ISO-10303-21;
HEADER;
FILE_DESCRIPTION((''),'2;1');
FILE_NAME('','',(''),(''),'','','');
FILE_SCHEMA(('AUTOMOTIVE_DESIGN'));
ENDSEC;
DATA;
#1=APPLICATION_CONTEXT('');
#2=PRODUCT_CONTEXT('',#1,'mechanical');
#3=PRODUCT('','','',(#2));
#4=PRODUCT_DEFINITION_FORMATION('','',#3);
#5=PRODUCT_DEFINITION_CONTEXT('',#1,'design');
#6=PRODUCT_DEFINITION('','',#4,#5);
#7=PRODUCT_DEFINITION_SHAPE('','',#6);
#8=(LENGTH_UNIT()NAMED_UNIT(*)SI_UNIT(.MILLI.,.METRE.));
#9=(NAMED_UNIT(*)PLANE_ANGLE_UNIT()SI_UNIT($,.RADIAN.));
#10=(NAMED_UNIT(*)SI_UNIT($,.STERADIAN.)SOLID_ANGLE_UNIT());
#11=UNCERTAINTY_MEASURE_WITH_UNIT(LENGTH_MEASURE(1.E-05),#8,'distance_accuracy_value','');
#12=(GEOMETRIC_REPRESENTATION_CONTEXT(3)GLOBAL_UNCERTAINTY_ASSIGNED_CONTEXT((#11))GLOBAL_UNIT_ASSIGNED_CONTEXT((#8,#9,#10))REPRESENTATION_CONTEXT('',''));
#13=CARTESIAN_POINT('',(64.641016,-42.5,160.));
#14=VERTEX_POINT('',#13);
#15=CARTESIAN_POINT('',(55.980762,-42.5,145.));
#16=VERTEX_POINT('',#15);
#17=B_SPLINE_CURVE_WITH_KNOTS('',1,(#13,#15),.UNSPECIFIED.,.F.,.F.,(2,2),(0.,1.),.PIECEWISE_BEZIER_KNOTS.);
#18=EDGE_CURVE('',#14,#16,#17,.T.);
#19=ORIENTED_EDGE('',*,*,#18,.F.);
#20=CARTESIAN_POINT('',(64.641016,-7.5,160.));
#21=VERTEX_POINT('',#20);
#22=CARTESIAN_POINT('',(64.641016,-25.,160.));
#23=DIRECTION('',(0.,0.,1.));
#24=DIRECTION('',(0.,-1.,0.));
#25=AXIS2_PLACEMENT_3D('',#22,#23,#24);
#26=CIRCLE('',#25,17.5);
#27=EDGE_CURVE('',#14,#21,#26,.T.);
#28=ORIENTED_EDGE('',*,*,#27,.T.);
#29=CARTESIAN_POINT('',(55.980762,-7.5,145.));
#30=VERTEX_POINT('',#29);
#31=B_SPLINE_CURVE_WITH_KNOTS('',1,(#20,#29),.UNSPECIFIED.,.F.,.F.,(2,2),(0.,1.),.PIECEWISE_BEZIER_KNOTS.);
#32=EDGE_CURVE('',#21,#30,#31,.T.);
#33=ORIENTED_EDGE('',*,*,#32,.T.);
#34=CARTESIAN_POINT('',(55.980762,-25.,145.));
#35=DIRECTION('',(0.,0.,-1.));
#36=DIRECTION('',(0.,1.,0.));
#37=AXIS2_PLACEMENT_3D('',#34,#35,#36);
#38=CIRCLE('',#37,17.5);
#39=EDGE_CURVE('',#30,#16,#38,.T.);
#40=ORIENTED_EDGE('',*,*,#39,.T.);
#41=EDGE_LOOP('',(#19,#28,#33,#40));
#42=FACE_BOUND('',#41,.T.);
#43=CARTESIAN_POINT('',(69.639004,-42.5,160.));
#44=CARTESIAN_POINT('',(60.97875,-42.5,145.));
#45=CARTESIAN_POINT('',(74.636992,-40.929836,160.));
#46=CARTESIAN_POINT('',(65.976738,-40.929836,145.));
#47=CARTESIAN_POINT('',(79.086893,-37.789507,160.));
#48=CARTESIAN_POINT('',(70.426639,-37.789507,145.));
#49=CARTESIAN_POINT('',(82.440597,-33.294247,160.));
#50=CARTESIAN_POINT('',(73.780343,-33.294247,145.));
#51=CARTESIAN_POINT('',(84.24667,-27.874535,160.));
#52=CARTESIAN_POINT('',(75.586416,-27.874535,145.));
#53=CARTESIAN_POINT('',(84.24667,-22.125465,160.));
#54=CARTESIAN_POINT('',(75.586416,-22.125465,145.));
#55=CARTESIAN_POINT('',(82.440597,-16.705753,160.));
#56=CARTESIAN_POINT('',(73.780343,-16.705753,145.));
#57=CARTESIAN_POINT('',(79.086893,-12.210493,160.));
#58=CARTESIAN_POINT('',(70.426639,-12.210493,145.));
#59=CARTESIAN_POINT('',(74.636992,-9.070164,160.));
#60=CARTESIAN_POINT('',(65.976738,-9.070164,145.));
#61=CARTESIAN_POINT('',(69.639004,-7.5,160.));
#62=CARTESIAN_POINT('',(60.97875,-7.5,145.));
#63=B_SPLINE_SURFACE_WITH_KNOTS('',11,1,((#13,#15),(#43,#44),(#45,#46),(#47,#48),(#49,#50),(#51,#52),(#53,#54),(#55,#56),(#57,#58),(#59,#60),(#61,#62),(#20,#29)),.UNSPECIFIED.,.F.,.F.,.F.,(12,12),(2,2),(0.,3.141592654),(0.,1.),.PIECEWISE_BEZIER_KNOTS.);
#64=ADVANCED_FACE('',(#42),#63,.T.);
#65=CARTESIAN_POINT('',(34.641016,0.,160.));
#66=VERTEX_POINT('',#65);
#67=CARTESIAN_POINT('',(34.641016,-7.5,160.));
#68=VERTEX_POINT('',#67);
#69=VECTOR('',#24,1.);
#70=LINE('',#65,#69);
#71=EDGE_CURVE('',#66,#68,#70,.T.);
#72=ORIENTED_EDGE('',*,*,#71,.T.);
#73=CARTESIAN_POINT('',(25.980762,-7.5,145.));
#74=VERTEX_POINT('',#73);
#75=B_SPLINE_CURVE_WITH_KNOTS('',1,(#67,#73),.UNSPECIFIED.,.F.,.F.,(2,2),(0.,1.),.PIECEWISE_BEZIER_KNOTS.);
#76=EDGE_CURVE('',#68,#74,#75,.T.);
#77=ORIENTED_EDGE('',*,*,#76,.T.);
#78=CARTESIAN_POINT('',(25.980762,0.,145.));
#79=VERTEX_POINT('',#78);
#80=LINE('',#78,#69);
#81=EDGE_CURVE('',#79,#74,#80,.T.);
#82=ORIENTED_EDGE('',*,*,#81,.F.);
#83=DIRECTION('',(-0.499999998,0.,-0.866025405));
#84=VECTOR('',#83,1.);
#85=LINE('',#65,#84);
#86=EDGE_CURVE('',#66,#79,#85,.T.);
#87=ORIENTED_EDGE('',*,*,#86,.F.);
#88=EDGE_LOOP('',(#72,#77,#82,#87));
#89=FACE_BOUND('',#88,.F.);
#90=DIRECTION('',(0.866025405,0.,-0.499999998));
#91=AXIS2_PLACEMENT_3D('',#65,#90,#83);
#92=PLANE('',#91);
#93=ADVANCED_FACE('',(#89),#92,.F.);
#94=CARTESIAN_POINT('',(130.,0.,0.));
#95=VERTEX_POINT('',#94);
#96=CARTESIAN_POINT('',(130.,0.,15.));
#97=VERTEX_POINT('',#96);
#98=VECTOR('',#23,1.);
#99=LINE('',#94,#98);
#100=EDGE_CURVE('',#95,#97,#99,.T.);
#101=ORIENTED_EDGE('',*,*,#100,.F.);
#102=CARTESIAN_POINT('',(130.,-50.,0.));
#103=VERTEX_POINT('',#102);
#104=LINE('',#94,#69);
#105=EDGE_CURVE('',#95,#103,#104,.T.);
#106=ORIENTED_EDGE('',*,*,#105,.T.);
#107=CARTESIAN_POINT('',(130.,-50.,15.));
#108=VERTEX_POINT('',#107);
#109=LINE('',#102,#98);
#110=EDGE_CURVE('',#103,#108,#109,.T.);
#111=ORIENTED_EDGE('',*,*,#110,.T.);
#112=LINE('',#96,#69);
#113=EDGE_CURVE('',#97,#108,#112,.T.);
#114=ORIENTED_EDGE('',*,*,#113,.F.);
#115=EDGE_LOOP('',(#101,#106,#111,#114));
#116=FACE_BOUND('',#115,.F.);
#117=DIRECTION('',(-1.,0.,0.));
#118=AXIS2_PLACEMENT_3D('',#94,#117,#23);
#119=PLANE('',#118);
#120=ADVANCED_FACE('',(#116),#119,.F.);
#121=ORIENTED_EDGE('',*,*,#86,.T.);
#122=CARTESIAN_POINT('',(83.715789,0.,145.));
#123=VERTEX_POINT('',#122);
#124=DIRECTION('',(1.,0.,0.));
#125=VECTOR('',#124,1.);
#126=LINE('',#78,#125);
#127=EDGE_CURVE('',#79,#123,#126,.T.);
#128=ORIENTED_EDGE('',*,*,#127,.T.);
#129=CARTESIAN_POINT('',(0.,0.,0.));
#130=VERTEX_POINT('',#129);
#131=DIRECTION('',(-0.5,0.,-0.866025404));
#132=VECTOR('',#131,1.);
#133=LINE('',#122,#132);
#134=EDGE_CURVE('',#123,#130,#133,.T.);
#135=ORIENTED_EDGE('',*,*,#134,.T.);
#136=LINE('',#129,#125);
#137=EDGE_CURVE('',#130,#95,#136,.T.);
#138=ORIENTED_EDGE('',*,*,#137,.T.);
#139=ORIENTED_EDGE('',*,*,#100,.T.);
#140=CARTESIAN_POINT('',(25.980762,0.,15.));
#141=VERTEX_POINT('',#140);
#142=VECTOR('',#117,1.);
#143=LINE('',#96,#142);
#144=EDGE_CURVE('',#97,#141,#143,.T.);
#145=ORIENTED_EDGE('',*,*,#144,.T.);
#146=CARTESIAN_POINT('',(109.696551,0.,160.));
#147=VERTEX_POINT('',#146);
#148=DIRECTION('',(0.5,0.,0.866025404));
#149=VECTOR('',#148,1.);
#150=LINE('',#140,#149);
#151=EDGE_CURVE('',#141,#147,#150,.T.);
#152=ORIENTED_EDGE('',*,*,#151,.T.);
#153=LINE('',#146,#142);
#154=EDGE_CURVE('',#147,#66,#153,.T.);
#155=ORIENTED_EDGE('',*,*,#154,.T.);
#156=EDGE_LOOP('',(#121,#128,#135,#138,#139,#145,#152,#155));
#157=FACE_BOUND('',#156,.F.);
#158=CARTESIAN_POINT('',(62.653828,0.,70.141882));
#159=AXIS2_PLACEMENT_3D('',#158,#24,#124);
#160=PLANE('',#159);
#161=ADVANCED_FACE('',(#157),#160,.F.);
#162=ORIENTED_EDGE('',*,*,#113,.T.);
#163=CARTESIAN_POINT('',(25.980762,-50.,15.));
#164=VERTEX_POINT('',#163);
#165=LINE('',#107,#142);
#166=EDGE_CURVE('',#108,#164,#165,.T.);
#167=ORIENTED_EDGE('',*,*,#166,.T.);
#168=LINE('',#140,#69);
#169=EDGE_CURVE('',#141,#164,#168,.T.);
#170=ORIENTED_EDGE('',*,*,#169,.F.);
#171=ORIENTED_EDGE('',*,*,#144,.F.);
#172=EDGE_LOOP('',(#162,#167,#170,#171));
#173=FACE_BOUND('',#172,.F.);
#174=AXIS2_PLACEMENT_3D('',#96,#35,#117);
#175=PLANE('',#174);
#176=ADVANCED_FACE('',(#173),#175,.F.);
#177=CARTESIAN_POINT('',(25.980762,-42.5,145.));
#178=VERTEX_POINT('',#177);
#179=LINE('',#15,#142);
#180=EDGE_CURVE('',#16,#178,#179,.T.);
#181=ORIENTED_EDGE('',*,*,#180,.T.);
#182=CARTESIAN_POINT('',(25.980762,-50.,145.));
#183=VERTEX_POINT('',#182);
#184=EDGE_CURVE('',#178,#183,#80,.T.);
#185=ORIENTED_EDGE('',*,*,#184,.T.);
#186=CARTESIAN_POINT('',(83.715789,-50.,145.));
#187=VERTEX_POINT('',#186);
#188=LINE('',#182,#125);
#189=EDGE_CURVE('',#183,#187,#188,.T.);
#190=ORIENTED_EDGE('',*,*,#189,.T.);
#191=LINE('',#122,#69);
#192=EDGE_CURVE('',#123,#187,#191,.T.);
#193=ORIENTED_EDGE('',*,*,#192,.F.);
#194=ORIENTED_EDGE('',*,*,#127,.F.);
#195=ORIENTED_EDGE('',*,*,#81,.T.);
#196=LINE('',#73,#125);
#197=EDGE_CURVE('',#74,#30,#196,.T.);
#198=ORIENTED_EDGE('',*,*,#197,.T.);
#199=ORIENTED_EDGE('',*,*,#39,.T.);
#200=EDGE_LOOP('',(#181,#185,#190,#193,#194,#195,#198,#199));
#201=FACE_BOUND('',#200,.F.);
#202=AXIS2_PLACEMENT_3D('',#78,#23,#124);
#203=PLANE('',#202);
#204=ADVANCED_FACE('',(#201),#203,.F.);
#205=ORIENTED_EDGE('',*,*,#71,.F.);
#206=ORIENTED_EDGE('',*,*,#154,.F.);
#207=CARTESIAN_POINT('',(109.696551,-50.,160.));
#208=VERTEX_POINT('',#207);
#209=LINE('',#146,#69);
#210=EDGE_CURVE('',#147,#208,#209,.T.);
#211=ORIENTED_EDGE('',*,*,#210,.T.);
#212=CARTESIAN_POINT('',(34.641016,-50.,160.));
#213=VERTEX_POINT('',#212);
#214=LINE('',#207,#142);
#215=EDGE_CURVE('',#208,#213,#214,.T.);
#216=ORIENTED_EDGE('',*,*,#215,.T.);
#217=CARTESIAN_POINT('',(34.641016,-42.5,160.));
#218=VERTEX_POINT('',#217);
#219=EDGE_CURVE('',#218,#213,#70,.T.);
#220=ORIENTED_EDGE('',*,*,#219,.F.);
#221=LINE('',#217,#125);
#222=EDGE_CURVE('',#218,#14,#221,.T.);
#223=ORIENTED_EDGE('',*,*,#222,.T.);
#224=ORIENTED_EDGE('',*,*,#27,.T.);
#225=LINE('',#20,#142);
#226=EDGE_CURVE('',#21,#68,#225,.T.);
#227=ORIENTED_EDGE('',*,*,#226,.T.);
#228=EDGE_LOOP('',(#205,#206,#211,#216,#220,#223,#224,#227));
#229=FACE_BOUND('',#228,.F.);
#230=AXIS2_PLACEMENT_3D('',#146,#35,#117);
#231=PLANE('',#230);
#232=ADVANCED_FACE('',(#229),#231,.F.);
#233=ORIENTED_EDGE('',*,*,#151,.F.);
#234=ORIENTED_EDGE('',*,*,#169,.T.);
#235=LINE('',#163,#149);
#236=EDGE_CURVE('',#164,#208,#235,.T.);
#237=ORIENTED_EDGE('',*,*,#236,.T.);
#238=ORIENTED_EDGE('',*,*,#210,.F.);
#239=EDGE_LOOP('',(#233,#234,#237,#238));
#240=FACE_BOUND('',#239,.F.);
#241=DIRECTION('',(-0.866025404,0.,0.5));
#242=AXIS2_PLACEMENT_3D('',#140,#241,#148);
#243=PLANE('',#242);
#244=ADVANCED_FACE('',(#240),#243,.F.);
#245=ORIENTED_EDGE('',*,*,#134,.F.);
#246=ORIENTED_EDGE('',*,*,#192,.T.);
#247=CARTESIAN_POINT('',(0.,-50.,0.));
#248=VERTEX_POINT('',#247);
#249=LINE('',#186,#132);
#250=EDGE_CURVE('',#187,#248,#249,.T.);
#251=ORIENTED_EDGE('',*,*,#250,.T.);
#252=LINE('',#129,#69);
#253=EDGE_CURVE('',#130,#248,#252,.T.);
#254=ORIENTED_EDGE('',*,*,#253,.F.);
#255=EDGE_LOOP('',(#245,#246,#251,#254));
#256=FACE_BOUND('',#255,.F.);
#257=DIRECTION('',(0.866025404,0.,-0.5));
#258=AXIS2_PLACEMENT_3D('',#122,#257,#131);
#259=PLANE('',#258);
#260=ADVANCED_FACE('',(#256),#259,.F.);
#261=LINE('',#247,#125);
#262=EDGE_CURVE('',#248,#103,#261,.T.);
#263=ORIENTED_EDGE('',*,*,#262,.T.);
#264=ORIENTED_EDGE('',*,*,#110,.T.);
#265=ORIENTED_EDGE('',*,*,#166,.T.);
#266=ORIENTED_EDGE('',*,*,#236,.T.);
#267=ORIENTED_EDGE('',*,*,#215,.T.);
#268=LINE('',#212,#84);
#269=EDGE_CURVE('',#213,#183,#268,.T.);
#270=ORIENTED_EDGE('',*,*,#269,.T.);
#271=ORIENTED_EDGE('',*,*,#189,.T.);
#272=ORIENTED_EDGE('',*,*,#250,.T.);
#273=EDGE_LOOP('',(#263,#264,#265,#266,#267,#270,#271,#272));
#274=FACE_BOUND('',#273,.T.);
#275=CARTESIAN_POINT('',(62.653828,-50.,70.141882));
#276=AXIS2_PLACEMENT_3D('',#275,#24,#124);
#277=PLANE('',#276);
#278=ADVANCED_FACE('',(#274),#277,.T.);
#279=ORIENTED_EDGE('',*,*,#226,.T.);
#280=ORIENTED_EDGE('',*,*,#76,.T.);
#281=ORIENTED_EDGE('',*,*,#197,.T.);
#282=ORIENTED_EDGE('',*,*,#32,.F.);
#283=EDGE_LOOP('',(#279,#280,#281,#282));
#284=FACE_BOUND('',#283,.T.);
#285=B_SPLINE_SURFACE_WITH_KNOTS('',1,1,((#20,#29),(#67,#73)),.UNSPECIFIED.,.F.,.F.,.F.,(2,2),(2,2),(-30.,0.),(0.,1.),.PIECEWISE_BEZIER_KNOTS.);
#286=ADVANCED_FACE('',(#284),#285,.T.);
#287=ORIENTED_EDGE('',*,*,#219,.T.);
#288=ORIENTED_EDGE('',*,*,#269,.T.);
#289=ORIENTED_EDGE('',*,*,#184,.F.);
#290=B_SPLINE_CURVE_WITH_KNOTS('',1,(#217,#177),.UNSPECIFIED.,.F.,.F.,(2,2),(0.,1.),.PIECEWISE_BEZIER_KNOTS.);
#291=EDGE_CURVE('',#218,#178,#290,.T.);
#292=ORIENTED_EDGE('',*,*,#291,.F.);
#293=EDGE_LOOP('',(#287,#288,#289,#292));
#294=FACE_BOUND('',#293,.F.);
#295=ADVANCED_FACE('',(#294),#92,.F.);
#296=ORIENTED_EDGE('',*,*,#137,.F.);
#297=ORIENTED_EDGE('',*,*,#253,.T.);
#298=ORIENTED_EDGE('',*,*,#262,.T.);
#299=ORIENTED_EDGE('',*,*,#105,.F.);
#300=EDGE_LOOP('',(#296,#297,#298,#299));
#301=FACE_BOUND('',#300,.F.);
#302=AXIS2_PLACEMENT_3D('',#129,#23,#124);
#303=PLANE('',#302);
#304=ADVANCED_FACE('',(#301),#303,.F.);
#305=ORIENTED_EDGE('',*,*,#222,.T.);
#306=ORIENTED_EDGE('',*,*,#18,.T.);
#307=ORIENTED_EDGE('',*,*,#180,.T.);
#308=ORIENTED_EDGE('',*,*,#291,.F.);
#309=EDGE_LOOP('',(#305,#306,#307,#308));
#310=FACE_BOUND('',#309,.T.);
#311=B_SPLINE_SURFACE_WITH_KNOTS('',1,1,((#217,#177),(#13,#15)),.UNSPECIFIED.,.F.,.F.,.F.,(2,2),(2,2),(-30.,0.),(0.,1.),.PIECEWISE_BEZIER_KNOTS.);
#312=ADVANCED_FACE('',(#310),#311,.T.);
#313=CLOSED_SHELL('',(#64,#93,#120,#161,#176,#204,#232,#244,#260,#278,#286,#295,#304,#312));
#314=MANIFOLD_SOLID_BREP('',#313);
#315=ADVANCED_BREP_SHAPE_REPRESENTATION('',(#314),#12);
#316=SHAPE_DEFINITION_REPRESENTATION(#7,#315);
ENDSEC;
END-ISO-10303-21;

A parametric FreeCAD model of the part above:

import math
import FreeCAD as App
import Part
import Sketcher
from FreeCAD import Vector
Q = App.Units.Quantity


def add_polygon(sketch, points):
    """Adds a closed chain of lines whose ends are joined by coincident constraints."""
    first, n = sketch.GeometryCount, len(points)
    for a, b in zip(points, points[1:] + points[:1]):
        sketch.addGeometry(Part.LineSegment(App.Vector(*a, 0), App.Vector(*b, 0)), False)
    for i in range(n):
        sketch.addConstraint(Sketcher.Constraint("Coincident", first + i, 2, first + (i + 1) % n, 1))

doc = App.newDocument("Part")
body = doc.addObject("PartDesign::Body", "Body")

# Sketch on XZ plane
sketch1 = body.newObject("Sketcher::SketchObject", "Sketch")
sketch1.AttachmentSupport = (doc.getObject("XZ_Plane"), [""])
sketch1.MapMode = "FlatFace"
add_polygon(sketch1, [(84, 145), (0, 0), (130, 0), (130, 15), (26, 15), (110, 160), (35, 160), (26, 145)])  # lines 0-7
sketch1.addConstraint([
    Sketcher.Constraint("Horizontal", 1),
    Sketcher.Constraint("Vertical", 2),
    Sketcher.Constraint("Horizontal", 3),
    Sketcher.Constraint("Horizontal", 5),
    Sketcher.Constraint("Horizontal", 7),
    Sketcher.Constraint("Coincident", 0, 2, -1, 1),
    Sketcher.Constraint("Parallel", 0, 4),
    Sketcher.Constraint("Parallel", 4, 6),
    Sketcher.Constraint("Vertical", 3, 2, 6, 2),
    Sketcher.Constraint("Equal", 0, 4),
    Sketcher.Constraint("DistanceX", 1, 1, 1, 2, 130.0),
    Sketcher.Constraint("DistanceY", 2, 1, 2, 2, 15.0),
    Sketcher.Constraint("Angle", 0, Q("-120 deg")),
    Sketcher.Constraint("DistanceY", -1, 1, 4, 2, 160.0),
    Sketcher.Constraint("DistanceX", 3, 2, 3, 1, 104.019238),
])
pad1 = body.newObject("PartDesign::Pad", "Pad")
pad1.Profile = sketch1
pad1.Length = 50

# Sketch on XY plane
sketch2 = body.newObject("Sketcher::SketchObject", "Sketch001")
sketch2.AttachmentSupport = (doc.getObject("XY_Plane"), [""])
sketch2.MapMode = "FlatFace"
sketch2.AttachmentOffset = App.Placement(Vector(0, 0, 160), App.Rotation())
sketch2.addGeometry([
    Part.LineSegment(Vector(35, -42, 0), Vector(65, -42, 0)),
    Part.ArcOfCircle(Part.Circle(Vector(65, -25, 0), Vector(0, 0, 1), 18), math.radians(-90), math.radians(90)),
    Part.LineSegment(Vector(65, -8, 0), Vector(35, -8, 0)),
    Part.LineSegment(Vector(35, -8, 0), Vector(35, -42, 0)),
], False)
sketch2.addConstraint([
    Sketcher.Constraint("Tangent", 0, 2, 1, 1),
    Sketcher.Constraint("Tangent", 1, 2, 2, 1),
    Sketcher.Constraint("Coincident", 2, 2, 3, 1),
    Sketcher.Constraint("Coincident", 3, 2, 0, 1),
    Sketcher.Constraint("Horizontal", 0),
    Sketcher.Constraint("Horizontal", 2),
    Sketcher.Constraint("Vertical", 3),
    Sketcher.Constraint("Radius", 1, 17.5),
    Sketcher.Constraint("DistanceX", 0, 1, 0, 2, 30.0),
    Sketcher.Constraint("DistanceY", 1, 3, -1, 1, 25.0),
    Sketcher.Constraint("DistanceX", -1, 1, 1, 3, 64.641016),
])

# Sketch on XY plane
sketch3 = body.newObject("Sketcher::SketchObject", "Sketch002")
sketch3.AttachmentSupport = (doc.getObject("XY_Plane"), [""])
sketch3.MapMode = "FlatFace"
sketch3.AttachmentOffset = App.Placement(Vector(0, 0, 145), App.Rotation())
sketch3.addGeometry([
    Part.LineSegment(Vector(26, -8, 0), Vector(56, -8, 0)),
    Part.ArcOfCircle(Part.Circle(Vector(56, -25, 0), Vector(0, 0, 1), 18), math.radians(-90), math.radians(90)),
    Part.LineSegment(Vector(56, -42, 0), Vector(26, -42, 0)),
    Part.LineSegment(Vector(26, -42, 0), Vector(26, -8, 0)),
], False)
sketch3.addConstraint([
    Sketcher.Constraint("Tangent", 0, 2, 1, 2),
    Sketcher.Constraint("Tangent", 1, 1, 2, 1),
    Sketcher.Constraint("Coincident", 2, 2, 3, 1),
    Sketcher.Constraint("Coincident", 3, 2, 0, 1),
    Sketcher.Constraint("Horizontal", 0),
    Sketcher.Constraint("Horizontal", 2),
    Sketcher.Constraint("Vertical", 3),
    Sketcher.Constraint("Radius", 1, 17.5),
    Sketcher.Constraint("DistanceX", 0, 1, 0, 2, 30.0),
    Sketcher.Constraint("DistanceY", 1, 3, -1, 1, 25.0),
    Sketcher.Constraint("DistanceX", -1, 1, 2, 2, 25.980762),
])

subtractiveloft = body.newObject("PartDesign::SubtractiveLoft", "SubtractiveLoft")
subtractiveloft.Profile = sketch2
subtractiveloft.Sections = [sketch3]

doc.recompute()
